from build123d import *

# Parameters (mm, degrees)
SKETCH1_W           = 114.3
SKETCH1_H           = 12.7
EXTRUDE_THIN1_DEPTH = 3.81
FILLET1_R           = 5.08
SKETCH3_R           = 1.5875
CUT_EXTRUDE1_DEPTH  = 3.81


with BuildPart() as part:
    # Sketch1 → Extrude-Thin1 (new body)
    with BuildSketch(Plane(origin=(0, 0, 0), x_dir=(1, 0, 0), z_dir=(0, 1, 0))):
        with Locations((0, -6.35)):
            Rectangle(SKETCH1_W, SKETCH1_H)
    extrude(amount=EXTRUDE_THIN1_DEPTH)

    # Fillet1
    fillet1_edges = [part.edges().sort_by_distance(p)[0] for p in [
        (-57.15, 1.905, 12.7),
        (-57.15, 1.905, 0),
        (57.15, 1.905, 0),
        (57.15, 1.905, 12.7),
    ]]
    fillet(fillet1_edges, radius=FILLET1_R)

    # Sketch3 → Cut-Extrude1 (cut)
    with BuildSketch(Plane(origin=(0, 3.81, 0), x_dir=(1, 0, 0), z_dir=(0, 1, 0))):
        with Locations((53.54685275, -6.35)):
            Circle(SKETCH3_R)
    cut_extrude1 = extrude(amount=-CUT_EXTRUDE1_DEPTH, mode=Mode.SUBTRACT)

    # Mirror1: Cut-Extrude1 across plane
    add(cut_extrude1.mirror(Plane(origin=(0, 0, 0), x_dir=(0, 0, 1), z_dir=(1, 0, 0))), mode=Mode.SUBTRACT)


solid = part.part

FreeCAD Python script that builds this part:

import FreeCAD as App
import Part
import Sketcher
from FreeCAD import Vector
Q = App.Units.Quantity


def edges_at(feature, points):
    """Names of the edges that pass closest to the given points."""
    edges = feature.Shape.Edges
    near = lambda p: min(range(len(edges)), key=lambda i: edges[i].distToShape(Part.Vertex(*p))[0])
    return sorted({f"Edge{near(p) + 1}" for p in points})

doc = App.newDocument("Part")
body = doc.addObject("PartDesign::Body", "Body")

sketch1 = body.newObject("Sketcher::SketchObject", "Sketch")
sketch1.AttachmentSupport = (doc.getObject("XZ_Plane"), [""])
sketch1.MapMode = "FlatFace"
sketch1.addGeometry(Part.LineSegment(Vector(-57, 0, 0), Vector(-57, 13, 0)), False)
sketch1.addGeometry(Part.LineSegment(Vector(-57, 13, 0), Vector(57, 13, 0)), False)
sketch1.addGeometry(Part.LineSegment(Vector(57, 13, 0), Vector(57, 0, 0)), False)
sketch1.addGeometry(Part.LineSegment(Vector(57, 0, 0), Vector(-57, 0, 0)), False)
sketch1.addConstraint(Sketcher.Constraint("Coincident", 0, 2, 1, 1))
sketch1.addConstraint(Sketcher.Constraint("Coincident", 1, 2, 2, 1))
sketch1.addConstraint(Sketcher.Constraint("Coincident", 2, 2, 3, 1))
sketch1.addConstraint(Sketcher.Constraint("Coincident", 3, 2, 0, 1))
sketch1.addConstraint(Sketcher.Constraint("Vertical", 0))
sketch1.addConstraint(Sketcher.Constraint("Horizontal", 1))
sketch1.addConstraint(Sketcher.Constraint("Vertical", 2))
sketch1.addConstraint(Sketcher.Constraint("Horizontal", 3))
sketch1.addConstraint(Sketcher.Constraint("Symmetric", 2, 2, 3, 2, -1, 1))
sketch1.addConstraint(Sketcher.Constraint("DistanceX", 1, 1, 1, 2, Q("4.5 in")))
sketch1.addConstraint(Sketcher.Constraint("DistanceY", 0, 1, 0, 2, Q("0.5 in")))
pad1 = body.newObject("PartDesign::Pad", "Pad")
pad1.Profile = sketch1
pad1.Length = Q("0.15 in")
pad1.Reversed = True
doc.recompute()

fillet = body.newObject("PartDesign::Fillet", "Fillet")
fillet.Base = (pad1, edges_at(pad1, [
    (-57.15, 1.905, 12.7),
    (-57.15, 1.905, 0),
    (57.15, 1.905, 0),
    (57.15, 1.905, 12.7),
]))
fillet.Radius = Q("0.2 in")

sketch2 = body.newObject("Sketcher::SketchObject", "Sketch001")
sketch2.AttachmentSupport = (doc.getObject("XZ_Plane"), [""])
sketch2.MapMode = "FlatFace"
sketch2.AttachmentOffset = App.Placement(Vector(0, 0, -0.15 * 25.4), App.Rotation())
sketch2.addGeometry(Part.Circle(Vector(53.5, 6.3, 0), Vector(0, 0, 1), 1.6), False)
sketch2.addConstraint(Sketcher.Constraint("Diameter", 0, Q("0.125 in")))
sketch2.addConstraint(Sketcher.Constraint("DistanceY", -1, 1, 0, 3, Q("0.25 in")))
sketch2.addConstraint(Sketcher.Constraint("DistanceX", -1, 1, 0, 3, Q("53.546853 mm")))
pocket1 = body.newObject("PartDesign::Pocket", "Pocket")
pocket1.Profile = sketch2
pocket1.Length = Q("0.15 in")
pocket1.Reversed = True
doc.recompute()

mirrored = body.newObject("PartDesign::Mirrored", "Mirrored")
mirrored.Originals = [pocket1]
mirrored.MirrorPlane = (doc.getObject("YZ_Plane"), [""])
body.Tip = mirrored

doc.recompute()
